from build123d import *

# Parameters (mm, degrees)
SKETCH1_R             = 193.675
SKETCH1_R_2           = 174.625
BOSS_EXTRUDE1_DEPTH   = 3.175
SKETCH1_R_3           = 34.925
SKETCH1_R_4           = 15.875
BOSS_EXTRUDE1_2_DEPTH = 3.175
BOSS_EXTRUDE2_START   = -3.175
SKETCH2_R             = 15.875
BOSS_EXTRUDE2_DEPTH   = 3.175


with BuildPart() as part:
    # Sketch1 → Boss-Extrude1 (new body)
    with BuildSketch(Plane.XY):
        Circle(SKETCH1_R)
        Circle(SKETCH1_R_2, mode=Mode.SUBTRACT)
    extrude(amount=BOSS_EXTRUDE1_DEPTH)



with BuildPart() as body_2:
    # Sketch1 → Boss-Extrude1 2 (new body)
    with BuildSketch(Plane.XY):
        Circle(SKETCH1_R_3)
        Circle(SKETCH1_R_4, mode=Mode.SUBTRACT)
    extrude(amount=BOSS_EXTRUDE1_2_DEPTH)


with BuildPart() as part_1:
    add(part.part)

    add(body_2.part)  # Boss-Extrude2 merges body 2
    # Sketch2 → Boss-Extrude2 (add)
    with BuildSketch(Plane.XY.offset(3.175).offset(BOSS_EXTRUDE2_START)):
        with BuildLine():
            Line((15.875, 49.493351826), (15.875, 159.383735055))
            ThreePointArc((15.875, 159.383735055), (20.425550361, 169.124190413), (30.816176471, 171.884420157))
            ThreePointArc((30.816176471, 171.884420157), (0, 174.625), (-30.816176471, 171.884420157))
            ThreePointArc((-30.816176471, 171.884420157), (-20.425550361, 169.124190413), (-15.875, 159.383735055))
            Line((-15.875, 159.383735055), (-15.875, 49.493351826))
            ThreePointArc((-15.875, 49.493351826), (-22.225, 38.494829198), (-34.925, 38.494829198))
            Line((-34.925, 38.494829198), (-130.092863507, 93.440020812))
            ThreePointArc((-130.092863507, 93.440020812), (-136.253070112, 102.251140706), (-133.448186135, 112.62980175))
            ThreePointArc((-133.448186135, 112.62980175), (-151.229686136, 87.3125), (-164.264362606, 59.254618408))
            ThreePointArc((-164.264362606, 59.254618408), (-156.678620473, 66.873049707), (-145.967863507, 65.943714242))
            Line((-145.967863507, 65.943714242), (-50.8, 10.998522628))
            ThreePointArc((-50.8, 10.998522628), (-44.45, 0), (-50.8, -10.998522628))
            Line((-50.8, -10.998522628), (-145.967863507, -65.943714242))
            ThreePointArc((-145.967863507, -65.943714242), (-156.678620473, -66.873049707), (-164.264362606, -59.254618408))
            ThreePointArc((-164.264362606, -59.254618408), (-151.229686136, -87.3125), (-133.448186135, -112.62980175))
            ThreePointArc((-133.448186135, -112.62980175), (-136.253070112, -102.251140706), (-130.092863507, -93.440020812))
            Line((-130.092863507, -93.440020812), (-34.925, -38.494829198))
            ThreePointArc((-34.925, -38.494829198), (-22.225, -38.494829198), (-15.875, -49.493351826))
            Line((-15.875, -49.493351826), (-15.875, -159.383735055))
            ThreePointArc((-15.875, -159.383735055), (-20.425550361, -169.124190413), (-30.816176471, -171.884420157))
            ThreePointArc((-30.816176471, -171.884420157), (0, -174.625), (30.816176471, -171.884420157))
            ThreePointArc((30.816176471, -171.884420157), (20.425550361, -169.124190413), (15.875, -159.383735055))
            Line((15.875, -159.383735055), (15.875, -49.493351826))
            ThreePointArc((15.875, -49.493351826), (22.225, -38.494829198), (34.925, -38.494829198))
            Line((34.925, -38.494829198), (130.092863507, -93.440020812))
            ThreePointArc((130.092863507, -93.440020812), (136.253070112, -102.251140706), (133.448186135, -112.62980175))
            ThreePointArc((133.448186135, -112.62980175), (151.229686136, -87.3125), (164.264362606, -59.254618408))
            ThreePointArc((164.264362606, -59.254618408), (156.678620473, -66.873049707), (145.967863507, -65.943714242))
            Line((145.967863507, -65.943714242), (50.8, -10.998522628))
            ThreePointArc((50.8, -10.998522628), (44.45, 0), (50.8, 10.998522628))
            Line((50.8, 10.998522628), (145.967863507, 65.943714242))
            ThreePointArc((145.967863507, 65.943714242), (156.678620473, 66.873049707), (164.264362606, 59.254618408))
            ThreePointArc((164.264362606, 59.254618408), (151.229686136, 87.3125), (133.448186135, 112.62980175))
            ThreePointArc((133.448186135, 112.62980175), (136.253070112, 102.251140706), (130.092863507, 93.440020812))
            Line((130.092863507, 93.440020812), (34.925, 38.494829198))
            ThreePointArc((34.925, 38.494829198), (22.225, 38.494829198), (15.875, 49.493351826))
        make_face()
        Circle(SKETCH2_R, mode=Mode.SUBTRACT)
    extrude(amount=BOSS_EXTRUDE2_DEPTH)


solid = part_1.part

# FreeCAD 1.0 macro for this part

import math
import FreeCAD as App
import Part
import Sketcher
Q = App.Units.Quantity

doc = App.newDocument("Part")
body = doc.addObject("PartDesign::Body", "Body")

sketch1 = doc.addObject("Sketcher::SketchObject", "Sketch")
body.addObject(sketch1)
sketch1.AttachmentSupport = (doc.XY_Plane, [""])
sketch1.MapMode = "FlatFace"
sketch1.addGeometry(Part.Circle(App.Vector(0, 0, 0), App.Vector(0, 0, 1), 194), False)
sketch1.addGeometry(Part.Circle(App.Vector(0, 0, 0), App.Vector(0, 0, 1), 175), False)
sketch1.addConstraint(Sketcher.Constraint("Coincident", 0, 3, -1, 1))
sketch1.addConstraint(Sketcher.Constraint("Coincident", 1, 3, -1, 1))
sketch1.addConstraint(Sketcher.Constraint("Diameter", 0, Q("15.25 in")))
sketch1.addConstraint(Sketcher.Constraint("Diameter", 1, Q("13.75 in")))
pad1 = doc.addObject("PartDesign::Pad", "Pad")
body.addObject(pad1)
pad1.Profile = sketch1
pad1.Length = Q("0.125 in")
body2 = doc.addObject("PartDesign::Body", "Body001")

sketch2 = doc.addObject("Sketcher::SketchObject", "Sketch001")
body2.addObject(sketch2)
sketch2.AttachmentSupport = (doc.getObject("XY_Plane001"), [""])
sketch2.MapMode = "FlatFace"
sketch2.addGeometry(Part.Circle(App.Vector(0, 0, 0), App.Vector(0, 0, 1), 35), False)
sketch2.addGeometry(Part.Circle(App.Vector(0, 0, 0), App.Vector(0, 0, 1), 16), False)
sketch2.addConstraint(Sketcher.Constraint("Coincident", 0, 3, -1, 1))
sketch2.addConstraint(Sketcher.Constraint("Coincident", 1, 3, -1, 1))
sketch2.addConstraint(Sketcher.Constraint("Diameter", 0, Q("2.75 in")))
sketch2.addConstraint(Sketcher.Constraint("Diameter", 1, Q("1.25 in")))
pad2 = doc.addObject("PartDesign::Pad", "Pad001")
body2.addObject(pad2)
pad2.Profile = sketch2
pad2.Length = Q("0.125 in")
body.AllowCompound = True
doc.recompute()

boolean = doc.addObject("PartDesign::Boolean", "Boolean")
body.addObject(boolean)
boolean.Type = "Fuse"
boolean.addObjects([body2])

sketch3 = doc.addObject("Sketcher::SketchObject", "Sketch002")
body.addObject(sketch3)
sketch3.AttachmentSupport = (doc.XY_Plane, [""])
sketch3.MapMode = "FlatFace"
sketch3.addGeometry(Part.LineSegment(App.Vector(16, 49, 0), App.Vector(16, 159, 0)), False)
sketch3.addGeometry(Part.ArcOfCircle(Part.Circle(App.Vector(29, 159, 0), App.Vector(0, 0, 1), 13), math.radians(80), math.radians(180)), False)
sketch3.addGeometry(Part.ArcOfCircle(Part.Circle(App.Vector(0, 0, 0), App.Vector(0, 0, 1), 175), math.radians(80), math.radians(100)), False)
sketch3.addGeometry(Part.ArcOfCircle(Part.Circle(App.Vector(-29, 159, 0), App.Vector(0, 0, 1), 13), math.radians(0), math.radians(100)), False)
sketch3.addGeometry(Part.LineSegment(App.Vector(-16, 159, 0), App.Vector(-16, 49, 0)), False)
sketch3.addGeometry(Part.ArcOfCircle(Part.Circle(App.Vector(-29, 49, 0), App.Vector(0, 0, 1), 13), math.radians(-120), math.radians(0)), False)
sketch3.addGeometry(Part.LineSegment(App.Vector(-35, 38, 0), App.Vector(-130, 93, 0)), False)
sketch3.addGeometry(Part.ArcOfCircle(Part.Circle(App.Vector(-124, 104, 0), App.Vector(0, 0, 1), 13), math.radians(140), math.radians(240)), False)
sketch3.addGeometry(Part.ArcOfCircle(Part.Circle(App.Vector(0, 0, 0), App.Vector(0, 0, 1), 175), math.radians(140), math.radians(160)), False)
sketch3.addGeometry(Part.ArcOfCircle(Part.Circle(App.Vector(-152, 55, 0), App.Vector(0, 0, 1), 13), math.radians(60), math.radians(160)), False)
sketch3.addGeometry(Part.LineSegment(App.Vector(-146, 66, 0), App.Vector(-51, 11, 0)), False)
sketch3.addGeometry(Part.ArcOfCircle(Part.Circle(App.Vector(-57, 0, 0), App.Vector(0, 0, 1), 13), math.radians(-60), math.radians(60)), False)
sketch3.addGeometry(Part.LineSegment(App.Vector(-51, -11, 0), App.Vector(-146, -66, 0)), False)
sketch3.addGeometry(Part.ArcOfCircle(Part.Circle(App.Vector(-152, -55, 0), App.Vector(0, 0, 1), 13), math.radians(-160), math.radians(-60)), False)
sketch3.addGeometry(Part.ArcOfCircle(Part.Circle(App.Vector(0, 0, 0), App.Vector(0, 0, 1), 175), math.radians(-160), math.radians(-140)), False)
sketch3.addGeometry(Part.ArcOfCircle(Part.Circle(App.Vector(-124, -104, 0), App.Vector(0, 0, 1), 13), math.radians(120), math.radians(220)), False)
sketch3.addGeometry(Part.LineSegment(App.Vector(-130, -93, 0), App.Vector(-35, -38, 0)), False)
sketch3.addGeometry(Part.ArcOfCircle(Part.Circle(App.Vector(-29, -49, 0), App.Vector(0, 0, 1), 13), math.radians(0), math.radians(120)), False)
sketch3.addGeometry(Part.LineSegment(App.Vector(-16, -49, 0), App.Vector(-16, -159, 0)), False)
sketch3.addGeometry(Part.ArcOfCircle(Part.Circle(App.Vector(-29, -159, 0), App.Vector(0, 0, 1), 13), math.radians(-100), math.radians(0)), False)
sketch3.addGeometry(Part.ArcOfCircle(Part.Circle(App.Vector(0, 0, 0), App.Vector(0, 0, 1), 175), math.radians(-100), math.radians(-80)), False)
sketch3.addGeometry(Part.ArcOfCircle(Part.Circle(App.Vector(29, -159, 0), App.Vector(0, 0, 1), 13), math.radians(180), math.radians(280)), False)
sketch3.addGeometry(Part.LineSegment(App.Vector(16, -159, 0), App.Vector(16, -49, 0)), False)
sketch3.addGeometry(Part.ArcOfCircle(Part.Circle(App.Vector(29, -49, 0), App.Vector(0, 0, 1), 13), math.radians(60), math.radians(180)), False)
sketch3.addGeometry(Part.LineSegment(App.Vector(35, -38, 0), App.Vector(130, -93, 0)), False)
sketch3.addGeometry(Part.ArcOfCircle(Part.Circle(App.Vector(124, -104, 0), App.Vector(0, 0, 1), 13), math.radians(-40), math.radians(60)), False)
sketch3.addGeometry(Part.ArcOfCircle(Part.Circle(App.Vector(0, 0, 0), App.Vector(0, 0, 1), 175), math.radians(-40), math.radians(-20)), False)
sketch3.addGeometry(Part.ArcOfCircle(Part.Circle(App.Vector(152, -55, 0), App.Vector(0, 0, 1), 13), math.radians(-120), math.radians(-20)), False)
sketch3.addGeometry(Part.LineSegment(App.Vector(146, -66, 0), App.Vector(51, -11, 0)), False)
sketch3.addGeometry(Part.ArcOfCircle(Part.Circle(App.Vector(57, 0, 0), App.Vector(0, 0, 1), 13), math.radians(120), math.radians(240)), False)
sketch3.addGeometry(Part.LineSegment(App.Vector(51, 11, 0), App.Vector(146, 66, 0)), False)
sketch3.addGeometry(Part.ArcOfCircle(Part.Circle(App.Vector(152, 55, 0), App.Vector(0, 0, 1), 13), math.radians(20), math.radians(120)), False)
sketch3.addGeometry(Part.ArcOfCircle(Part.Circle(App.Vector(0, 0, 0), App.Vector(0, 0, 1), 175), math.radians(20), math.radians(40)), False)
sketch3.addGeometry(Part.ArcOfCircle(Part.Circle(App.Vector(124, 104, 0), App.Vector(0, 0, 1), 13), math.radians(-60), math.radians(40)), False)
sketch3.addGeometry(Part.LineSegment(App.Vector(130, 93, 0), App.Vector(35, 38, 0)), False)
sketch3.addGeometry(Part.ArcOfCircle(Part.Circle(App.Vector(29, 49, 0), App.Vector(0, 0, 1), 13), math.radians(180), math.radians(300)), False)
sketch3.addGeometry(Part.Circle(App.Vector(0, 0, 0), App.Vector(0, 0, 1), 16), False)
sketch3.addConstraint(Sketcher.Constraint("Tangent", 0, 2, 1, 2))
sketch3.addConstraint(Sketcher.Constraint("Tangent", 1, 1, 2, 1))
sketch3.addConstraint(Sketcher.Constraint("Tangent", 2, 2, 3, 2))
sketch3.addConstraint(Sketcher.Constraint("Tangent", 3, 1, 4, 1))
sketch3.addConstraint(Sketcher.Constraint("Tangent", 4, 2, 5, 2))
sketch3.addConstraint(Sketcher.Constraint("Tangent", 5, 1, 6, 1))
sketch3.addConstraint(Sketcher.Constraint("Tangent", 6, 2, 7, 2))
sketch3.addConstraint(Sketcher.Constraint("Tangent", 7, 1, 8, 1))
sketch3.addConstraint(Sketcher.Constraint("Tangent", 8, 2, 9, 2))
sketch3.addConstraint(Sketcher.Constraint("Tangent", 9, 1, 10, 1))
sketch3.addConstraint(Sketcher.Constraint("Tangent", 10, 2, 11, 2))
sketch3.addConstraint(Sketcher.Constraint("Tangent", 11, 1, 12, 1))
sketch3.addConstraint(Sketcher.Constraint("Tangent", 12, 2, 13, 2))
sketch3.addConstraint(Sketcher.Constraint("Tangent", 13, 1, 14, 1))
sketch3.addConstraint(Sketcher.Constraint("Tangent", 14, 2, 15, 2))
sketch3.addConstraint(Sketcher.Constraint("Tangent", 15, 1, 16, 1))
sketch3.addConstraint(Sketcher.Constraint("Tangent", 16, 2, 17, 2))
sketch3.addConstraint(Sketcher.Constraint("Tangent", 17, 1, 18, 1))
sketch3.addConstraint(Sketcher.Constraint("Tangent", 18, 2, 19, 2))
sketch3.addConstraint(Sketcher.Constraint("Tangent", 19, 1, 20, 1))
sketch3.addConstraint(Sketcher.Constraint("Tangent", 20, 2, 21, 2))
sketch3.addConstraint(Sketcher.Constraint("Tangent", 21, 1, 22, 1))
sketch3.addConstraint(Sketcher.Constraint("Tangent", 22, 2, 23, 2))
sketch3.addConstraint(Sketcher.Constraint("Tangent", 23, 1, 24, 1))
sketch3.addConstraint(Sketcher.Constraint("Tangent", 24, 2, 25, 2))
sketch3.addConstraint(Sketcher.Constraint("Tangent", 25, 1, 26, 1))
sketch3.addConstraint(Sketcher.Constraint("Tangent", 26, 2, 27, 2))
sketch3.addConstraint(Sketcher.Constraint("Tangent", 27, 1, 28, 1))
sketch3.addConstraint(Sketcher.Constraint("Tangent", 28, 2, 29, 2))
sketch3.addConstraint(Sketcher.Constraint("Tangent", 29, 1, 30, 1))
sketch3.addConstraint(Sketcher.Constraint("Tangent", 30, 2, 31, 2))
sketch3.addConstraint(Sketcher.Constraint("Tangent", 31, 1, 32, 1))
sketch3.addConstraint(Sketcher.Constraint("Tangent", 32, 2, 33, 2))
sketch3.addConstraint(Sketcher.Constraint("Tangent", 33, 1, 34, 1))
sketch3.addConstraint(Sketcher.Constraint("Tangent", 34, 2, 35, 2))
sketch3.addConstraint(Sketcher.Constraint("Tangent", 35, 1, 0, 1))
sketch3.addConstraint(Sketcher.Constraint("Vertical", 0))
sketch3.addConstraint(Sketcher.Constraint("Vertical", 4))
sketch3.addConstraint(Sketcher.Constraint("Vertical", 18))
sketch3.addConstraint(Sketcher.Constraint("Vertical", 22))
sketch3.addConstraint(Sketcher.Constraint("Coincident", 2, 3, -1, 1))
sketch3.addConstraint(Sketcher.Constraint("Coincident", 8, 3, -1, 1))
sketch3.addConstraint(Sketcher.Constraint("Coincident", 14, 3, -1, 1))
sketch3.addConstraint(Sketcher.Constraint("Coincident", 20, 3, -1, 1))
sketch3.addConstraint(Sketcher.Constraint("Coincident", 26, 3, -1, 1))
sketch3.addConstraint(Sketcher.Constraint("Coincident", 32, 3, -1, 1))
sketch3.addConstraint(Sketcher.Constraint("Coincident", 36, 3, -1, 1))
sketch3.addConstraint(Sketcher.Constraint("Equal", 1, 3))
sketch3.addConstraint(Sketcher.Constraint("Equal", 3, 5))
sketch3.addConstraint(Sketcher.Constraint("Equal", 5, 7))
sketch3.addConstraint(Sketcher.Constraint("Equal", 2, 8))
sketch3.addConstraint(Sketcher.Constraint("Equal", 7, 9))
sketch3.addConstraint(Sketcher.Constraint("Equal", 9, 11))
sketch3.addConstraint(Sketcher.Constraint("Equal", 11, 13))
sketch3.addConstraint(Sketcher.Constraint("Equal", 8, 14))
sketch3.addConstraint(Sketcher.Constraint("Equal", 13, 15))
sketch3.addConstraint(Sketcher.Constraint("Equal", 15, 17))
sketch3.addConstraint(Sketcher.Constraint("Equal", 17, 19))
sketch3.addConstraint(Sketcher.Constraint("Equal", 14, 20))
sketch3.addConstraint(Sketcher.Constraint("Equal", 19, 21))
sketch3.addConstraint(Sketcher.Constraint("Equal", 21, 23))
sketch3.addConstraint(Sketcher.Constraint("Equal", 23, 25))
sketch3.addConstraint(Sketcher.Constraint("Equal", 20, 26))
sketch3.addConstraint(Sketcher.Constraint("Equal", 25, 27))
sketch3.addConstraint(Sketcher.Constraint("Equal", 27, 29))
sketch3.addConstraint(Sketcher.Constraint("Equal", 29, 31))
sketch3.addConstraint(Sketcher.Constraint("Equal", 26, 32))
sketch3.addConstraint(Sketcher.Constraint("Equal", 31, 33))
sketch3.addConstraint(Sketcher.Constraint("Equal", 33, 35))
sketch3.addConstraint(Sketcher.Constraint("Symmetric", 5, 3, 23, 3, -1, 1))
sketch3.addConstraint(Sketcher.Constraint("Symmetric", 11, 3, 29, 3, -1, 1))
sketch3.addConstraint(Sketcher.Constraint("Symmetric", 17, 3, 35, 3, -1, 1))
sketch3.addConstraint(Sketcher.Constraint("Symmetric", 17, 3, 23, 3, -2))
sketch3.addConstraint(Sketcher.Constraint("Symmetric", 12, 2, 27, 1, -2))
sketch3.addConstraint(Sketcher.Constraint("Parallel", 6, 10))
sketch3.addConstraint(Sketcher.Constraint("Parallel", 12, 16))
sketch3.addConstraint(Sketcher.Constraint("Parallel", 10, 24))
sketch3.addConstraint(Sketcher.Constraint("Parallel", 24, 28))
sketch3.addConstraint(Sketcher.Constraint("Parallel", 16, 30))
sketch3.addConstraint(Sketcher.Constraint("Parallel", 30, 34))
sketch3.addConstraint(Sketcher.Constraint("Equal", 6, 10))
sketch3.addConstraint(Sketcher.Constraint("Radius", 1, Q("0.5 in")))
sketch3.addConstraint(Sketcher.Constraint("Diameter", 36, Q("1.25 in")))
sketch3.addConstraint(Sketcher.Constraint("DistanceX", 10, 2, -1, 1, Q("2 in")))
sketch3.addConstraint(Sketcher.Constraint("Angle", 6, Q("150 deg")))
sketch3.addConstraint(Sketcher.Constraint("Radius", 2, Q("6.875 in")))
sketch3.addConstraint(Sketcher.Constraint("DistanceX", -1, 1, 1, 3, Q("1.125 in")))
pad3 = doc.addObject("PartDesign::Pad", "Pad002")
body.addObject(pad3)
pad3.Profile = sketch3
pad3.Length = Q("0.125 in")

doc.recompute()
